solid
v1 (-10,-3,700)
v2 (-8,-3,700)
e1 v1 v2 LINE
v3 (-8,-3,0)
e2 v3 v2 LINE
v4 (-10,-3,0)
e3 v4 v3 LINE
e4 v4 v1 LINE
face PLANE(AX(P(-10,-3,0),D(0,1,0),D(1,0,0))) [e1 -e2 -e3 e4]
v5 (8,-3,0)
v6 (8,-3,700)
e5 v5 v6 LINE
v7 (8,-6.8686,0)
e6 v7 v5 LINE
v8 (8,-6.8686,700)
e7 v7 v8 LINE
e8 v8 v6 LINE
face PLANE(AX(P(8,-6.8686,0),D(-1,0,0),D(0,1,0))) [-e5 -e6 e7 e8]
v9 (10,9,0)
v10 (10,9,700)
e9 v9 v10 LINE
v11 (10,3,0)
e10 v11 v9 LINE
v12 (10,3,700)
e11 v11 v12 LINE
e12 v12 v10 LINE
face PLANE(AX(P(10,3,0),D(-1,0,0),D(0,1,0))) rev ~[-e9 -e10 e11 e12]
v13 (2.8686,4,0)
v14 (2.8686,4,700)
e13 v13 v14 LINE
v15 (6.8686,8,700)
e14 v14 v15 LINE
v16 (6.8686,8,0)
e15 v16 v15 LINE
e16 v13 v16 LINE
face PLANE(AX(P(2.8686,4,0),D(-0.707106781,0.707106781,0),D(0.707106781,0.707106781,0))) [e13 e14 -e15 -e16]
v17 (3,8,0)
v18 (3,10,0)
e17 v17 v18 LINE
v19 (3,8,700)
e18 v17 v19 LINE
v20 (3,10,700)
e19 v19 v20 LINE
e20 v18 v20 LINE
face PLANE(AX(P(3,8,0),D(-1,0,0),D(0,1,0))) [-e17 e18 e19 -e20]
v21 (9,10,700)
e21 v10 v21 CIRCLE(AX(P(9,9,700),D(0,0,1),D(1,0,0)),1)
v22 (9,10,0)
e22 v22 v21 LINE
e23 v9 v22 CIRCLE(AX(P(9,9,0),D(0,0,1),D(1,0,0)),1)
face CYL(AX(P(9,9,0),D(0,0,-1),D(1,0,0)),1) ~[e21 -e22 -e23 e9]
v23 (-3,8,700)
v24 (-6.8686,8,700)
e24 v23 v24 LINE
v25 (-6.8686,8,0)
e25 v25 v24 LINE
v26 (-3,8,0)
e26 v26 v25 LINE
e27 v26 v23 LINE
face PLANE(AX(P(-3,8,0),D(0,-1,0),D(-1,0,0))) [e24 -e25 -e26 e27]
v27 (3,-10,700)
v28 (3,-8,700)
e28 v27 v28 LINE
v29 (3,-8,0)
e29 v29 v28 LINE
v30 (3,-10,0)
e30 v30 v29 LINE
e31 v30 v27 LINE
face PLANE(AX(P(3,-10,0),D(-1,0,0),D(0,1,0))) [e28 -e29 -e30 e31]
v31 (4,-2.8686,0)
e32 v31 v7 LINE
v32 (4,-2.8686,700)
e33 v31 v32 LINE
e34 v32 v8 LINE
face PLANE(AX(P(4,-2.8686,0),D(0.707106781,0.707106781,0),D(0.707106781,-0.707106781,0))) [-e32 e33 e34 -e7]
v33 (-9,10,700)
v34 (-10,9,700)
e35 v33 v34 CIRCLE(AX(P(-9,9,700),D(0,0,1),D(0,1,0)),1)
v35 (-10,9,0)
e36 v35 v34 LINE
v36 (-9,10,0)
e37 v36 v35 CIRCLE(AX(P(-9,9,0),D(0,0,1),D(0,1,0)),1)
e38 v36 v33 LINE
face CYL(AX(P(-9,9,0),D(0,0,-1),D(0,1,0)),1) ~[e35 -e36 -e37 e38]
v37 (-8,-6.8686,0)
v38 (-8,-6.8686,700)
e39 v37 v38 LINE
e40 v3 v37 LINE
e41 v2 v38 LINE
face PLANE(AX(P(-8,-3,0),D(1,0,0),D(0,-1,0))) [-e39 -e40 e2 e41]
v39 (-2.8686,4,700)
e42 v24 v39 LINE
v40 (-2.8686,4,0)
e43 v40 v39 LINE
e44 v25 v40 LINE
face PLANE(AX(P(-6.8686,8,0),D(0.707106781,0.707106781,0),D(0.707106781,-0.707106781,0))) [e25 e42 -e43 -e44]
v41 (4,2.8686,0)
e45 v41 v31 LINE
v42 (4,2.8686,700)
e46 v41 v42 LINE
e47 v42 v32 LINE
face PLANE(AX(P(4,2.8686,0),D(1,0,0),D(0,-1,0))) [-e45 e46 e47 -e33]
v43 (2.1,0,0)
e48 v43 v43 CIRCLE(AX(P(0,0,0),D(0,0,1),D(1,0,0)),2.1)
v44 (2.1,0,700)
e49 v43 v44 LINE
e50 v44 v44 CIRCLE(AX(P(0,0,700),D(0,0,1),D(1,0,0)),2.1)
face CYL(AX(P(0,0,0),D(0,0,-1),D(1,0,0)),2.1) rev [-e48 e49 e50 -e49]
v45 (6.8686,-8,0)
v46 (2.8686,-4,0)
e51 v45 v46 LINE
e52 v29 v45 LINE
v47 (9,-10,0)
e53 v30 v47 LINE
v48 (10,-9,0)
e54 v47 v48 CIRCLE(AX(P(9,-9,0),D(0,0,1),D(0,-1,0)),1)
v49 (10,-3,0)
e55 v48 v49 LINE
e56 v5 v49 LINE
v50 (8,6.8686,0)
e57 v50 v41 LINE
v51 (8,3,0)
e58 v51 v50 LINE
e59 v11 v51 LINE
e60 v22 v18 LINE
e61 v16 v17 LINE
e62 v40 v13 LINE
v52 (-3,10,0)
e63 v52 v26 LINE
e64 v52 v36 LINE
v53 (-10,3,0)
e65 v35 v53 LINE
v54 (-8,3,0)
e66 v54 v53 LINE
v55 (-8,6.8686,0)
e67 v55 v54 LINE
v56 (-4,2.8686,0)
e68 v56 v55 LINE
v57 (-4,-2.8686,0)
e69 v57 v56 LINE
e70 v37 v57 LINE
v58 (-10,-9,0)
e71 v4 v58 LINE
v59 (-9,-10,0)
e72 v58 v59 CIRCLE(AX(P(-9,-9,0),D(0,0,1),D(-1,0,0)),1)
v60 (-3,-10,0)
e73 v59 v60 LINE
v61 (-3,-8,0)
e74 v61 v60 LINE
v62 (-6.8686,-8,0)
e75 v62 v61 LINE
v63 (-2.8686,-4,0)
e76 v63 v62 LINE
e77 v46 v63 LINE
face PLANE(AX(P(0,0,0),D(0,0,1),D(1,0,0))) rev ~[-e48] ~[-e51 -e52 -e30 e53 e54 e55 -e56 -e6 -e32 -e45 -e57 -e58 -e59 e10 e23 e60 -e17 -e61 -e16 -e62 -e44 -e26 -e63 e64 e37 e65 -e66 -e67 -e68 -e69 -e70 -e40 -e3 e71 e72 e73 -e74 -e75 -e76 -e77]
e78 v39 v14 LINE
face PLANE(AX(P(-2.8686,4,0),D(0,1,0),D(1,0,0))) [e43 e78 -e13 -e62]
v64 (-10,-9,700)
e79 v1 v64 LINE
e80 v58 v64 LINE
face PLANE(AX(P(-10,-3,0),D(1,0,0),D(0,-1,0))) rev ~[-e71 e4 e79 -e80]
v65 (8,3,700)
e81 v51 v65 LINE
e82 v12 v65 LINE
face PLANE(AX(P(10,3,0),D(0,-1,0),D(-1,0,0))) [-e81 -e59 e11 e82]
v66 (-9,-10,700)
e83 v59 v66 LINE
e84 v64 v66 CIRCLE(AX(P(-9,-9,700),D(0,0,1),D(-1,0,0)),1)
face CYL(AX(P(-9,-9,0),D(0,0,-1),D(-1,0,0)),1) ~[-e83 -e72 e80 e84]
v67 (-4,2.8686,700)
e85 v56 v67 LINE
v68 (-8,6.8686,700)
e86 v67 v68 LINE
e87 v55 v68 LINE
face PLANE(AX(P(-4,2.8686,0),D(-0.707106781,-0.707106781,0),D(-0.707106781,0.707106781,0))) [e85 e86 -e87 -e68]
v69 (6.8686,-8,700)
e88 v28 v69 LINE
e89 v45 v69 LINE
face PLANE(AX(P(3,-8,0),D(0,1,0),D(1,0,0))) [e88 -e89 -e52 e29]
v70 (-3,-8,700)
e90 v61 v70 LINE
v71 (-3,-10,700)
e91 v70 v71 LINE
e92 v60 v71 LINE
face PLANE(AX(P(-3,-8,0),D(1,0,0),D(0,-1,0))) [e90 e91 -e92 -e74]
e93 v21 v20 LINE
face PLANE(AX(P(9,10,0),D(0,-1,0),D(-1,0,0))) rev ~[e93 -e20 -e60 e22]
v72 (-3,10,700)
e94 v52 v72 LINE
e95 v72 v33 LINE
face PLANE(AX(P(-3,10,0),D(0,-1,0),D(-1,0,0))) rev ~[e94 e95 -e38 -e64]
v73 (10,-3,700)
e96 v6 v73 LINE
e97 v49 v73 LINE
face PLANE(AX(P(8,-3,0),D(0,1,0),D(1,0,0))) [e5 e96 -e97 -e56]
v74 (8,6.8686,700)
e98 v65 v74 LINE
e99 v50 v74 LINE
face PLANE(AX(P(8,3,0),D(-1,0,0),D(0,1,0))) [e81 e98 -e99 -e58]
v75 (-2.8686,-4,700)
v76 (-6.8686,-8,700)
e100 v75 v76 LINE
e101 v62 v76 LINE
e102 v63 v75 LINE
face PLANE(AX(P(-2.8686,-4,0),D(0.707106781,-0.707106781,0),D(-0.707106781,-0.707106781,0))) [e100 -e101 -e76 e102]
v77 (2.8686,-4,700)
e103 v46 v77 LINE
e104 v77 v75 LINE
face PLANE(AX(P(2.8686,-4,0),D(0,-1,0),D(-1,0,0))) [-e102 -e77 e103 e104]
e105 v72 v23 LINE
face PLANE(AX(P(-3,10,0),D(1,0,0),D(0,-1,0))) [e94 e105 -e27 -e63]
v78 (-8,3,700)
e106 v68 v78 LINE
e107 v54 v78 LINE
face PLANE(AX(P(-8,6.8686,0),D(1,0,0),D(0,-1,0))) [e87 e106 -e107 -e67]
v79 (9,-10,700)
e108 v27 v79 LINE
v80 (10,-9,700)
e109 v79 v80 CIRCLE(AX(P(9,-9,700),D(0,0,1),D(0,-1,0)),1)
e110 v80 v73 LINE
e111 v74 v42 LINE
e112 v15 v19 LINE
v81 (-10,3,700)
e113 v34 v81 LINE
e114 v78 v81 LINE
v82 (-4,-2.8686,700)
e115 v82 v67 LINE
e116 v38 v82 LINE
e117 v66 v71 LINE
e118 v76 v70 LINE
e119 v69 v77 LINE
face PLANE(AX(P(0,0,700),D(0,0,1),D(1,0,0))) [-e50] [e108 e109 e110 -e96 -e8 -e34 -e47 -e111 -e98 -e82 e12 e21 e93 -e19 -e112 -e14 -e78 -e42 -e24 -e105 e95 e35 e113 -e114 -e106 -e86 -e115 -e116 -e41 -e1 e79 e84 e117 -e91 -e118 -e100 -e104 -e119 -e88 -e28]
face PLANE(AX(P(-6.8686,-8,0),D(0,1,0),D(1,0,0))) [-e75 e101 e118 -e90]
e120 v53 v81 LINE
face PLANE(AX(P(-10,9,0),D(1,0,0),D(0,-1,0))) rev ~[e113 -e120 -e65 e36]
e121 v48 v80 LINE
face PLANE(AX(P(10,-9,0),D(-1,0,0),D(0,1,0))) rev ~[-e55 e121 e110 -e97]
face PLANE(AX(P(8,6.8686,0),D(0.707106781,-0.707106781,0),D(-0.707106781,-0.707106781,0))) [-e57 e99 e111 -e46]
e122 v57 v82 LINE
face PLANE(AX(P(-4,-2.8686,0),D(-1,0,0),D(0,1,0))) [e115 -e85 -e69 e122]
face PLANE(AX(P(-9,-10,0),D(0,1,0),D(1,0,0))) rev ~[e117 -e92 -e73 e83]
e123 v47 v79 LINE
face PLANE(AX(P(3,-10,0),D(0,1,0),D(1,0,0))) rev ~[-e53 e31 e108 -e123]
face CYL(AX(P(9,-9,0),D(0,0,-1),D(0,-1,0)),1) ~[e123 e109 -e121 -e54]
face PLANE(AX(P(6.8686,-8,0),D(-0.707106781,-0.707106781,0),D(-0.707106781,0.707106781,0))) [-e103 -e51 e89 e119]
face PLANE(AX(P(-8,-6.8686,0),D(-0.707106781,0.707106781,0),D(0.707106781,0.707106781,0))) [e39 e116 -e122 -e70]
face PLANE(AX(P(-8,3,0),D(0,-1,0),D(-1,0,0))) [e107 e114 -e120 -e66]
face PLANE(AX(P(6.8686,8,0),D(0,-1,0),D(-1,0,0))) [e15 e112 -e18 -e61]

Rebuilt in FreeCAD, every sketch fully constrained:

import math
import FreeCAD as App
import Part
import Sketcher
Q = App.Units.Quantity

doc = App.newDocument("Part")
body = doc.addObject("PartDesign::Body", "Body")

# Sketch on XY plane
sketch1 = body.newObject("Sketcher::SketchObject", "Sketch")
sketch1.AttachmentSupport = (doc.getObject("XY_Plane"), [""])
sketch1.MapMode = "FlatFace"
sketch1.addGeometry([
    Part.LineSegment(App.Vector(8, 3, 0), App.Vector(10, 3, 0)),  # 0
    Part.LineSegment(App.Vector(10, 3, 0), App.Vector(10, 9, 0)),  # 1
    Part.ArcOfCircle(Part.Circle(App.Vector(9, 9, 0), App.Vector(0, 0, 1), 1), math.radians(0), math.radians(90)),  # 2
    Part.LineSegment(App.Vector(9, 10, 0), App.Vector(3, 10, 0)),  # 3
    Part.LineSegment(App.Vector(3, 10, 0), App.Vector(3, 8, 0)),  # 4
    Part.LineSegment(App.Vector(3, 8, 0), App.Vector(6.9, 8, 0)),  # 5
    Part.LineSegment(App.Vector(6.9, 8, 0), App.Vector(2.9, 4, 0)),  # 6
    Part.LineSegment(App.Vector(2.9, 4, 0), App.Vector(-2.9, 4, 0)),  # 7
    Part.LineSegment(App.Vector(-2.9, 4, 0), App.Vector(-6.9, 8, 0)),  # 8
    Part.LineSegment(App.Vector(-6.9, 8, 0), App.Vector(-3, 8, 0)),  # 9
    Part.LineSegment(App.Vector(-3, 8, 0), App.Vector(-3, 10, 0)),  # 10
    Part.LineSegment(App.Vector(-3, 10, 0), App.Vector(-9, 10, 0)),  # 11
    Part.ArcOfCircle(Part.Circle(App.Vector(-9, 9, 0), App.Vector(0, 0, 1), 1), math.radians(90), math.radians(180)),  # 12
    Part.LineSegment(App.Vector(-10, 9, 0), App.Vector(-10, 3, 0)),  # 13
    Part.LineSegment(App.Vector(-10, 3, 0), App.Vector(-8, 3, 0)),  # 14
    Part.LineSegment(App.Vector(-8, 3, 0), App.Vector(-8, 6.9, 0)),  # 15
    Part.LineSegment(App.Vector(-8, 6.9, 0), App.Vector(-4, 2.9, 0)),  # 16
    Part.LineSegment(App.Vector(-4, 2.9, 0), App.Vector(-4, -2.9, 0)),  # 17
    Part.LineSegment(App.Vector(-4, -2.9, 0), App.Vector(-8, -6.9, 0)),  # 18
    Part.LineSegment(App.Vector(-8, -6.9, 0), App.Vector(-8, -3, 0)),  # 19
    Part.LineSegment(App.Vector(-8, -3, 0), App.Vector(-10, -3, 0)),  # 20
    Part.LineSegment(App.Vector(-10, -3, 0), App.Vector(-10, -9, 0)),  # 21
    Part.ArcOfCircle(Part.Circle(App.Vector(-9, -9, 0), App.Vector(0, 0, 1), 1), math.radians(180), math.radians(270)),  # 22
    Part.LineSegment(App.Vector(-9, -10, 0), App.Vector(-3, -10, 0)),  # 23
    Part.LineSegment(App.Vector(-3, -10, 0), App.Vector(-3, -8, 0)),  # 24
    Part.LineSegment(App.Vector(-3, -8, 0), App.Vector(-6.9, -8, 0)),  # 25
    Part.LineSegment(App.Vector(-6.9, -8, 0), App.Vector(-2.9, -4, 0)),  # 26
    Part.LineSegment(App.Vector(-2.9, -4, 0), App.Vector(2.9, -4, 0)),  # 27
    Part.LineSegment(App.Vector(2.9, -4, 0), App.Vector(6.9, -8, 0)),  # 28
    Part.LineSegment(App.Vector(6.9, -8, 0), App.Vector(3, -8, 0)),  # 29
    Part.LineSegment(App.Vector(3, -8, 0), App.Vector(3, -10, 0)),  # 30
    Part.LineSegment(App.Vector(3, -10, 0), App.Vector(9, -10, 0)),  # 31
    Part.ArcOfCircle(Part.Circle(App.Vector(9, -9, 0), App.Vector(0, 0, 1), 1), math.radians(-90), math.radians(0)),  # 32
    Part.LineSegment(App.Vector(10, -9, 0), App.Vector(10, -3, 0)),  # 33
    Part.LineSegment(App.Vector(10, -3, 0), App.Vector(8, -3, 0)),  # 34
    Part.LineSegment(App.Vector(8, -3, 0), App.Vector(8, -6.9, 0)),  # 35
    Part.LineSegment(App.Vector(8, -6.9, 0), App.Vector(4, -2.9, 0)),  # 36
    Part.LineSegment(App.Vector(4, -2.9, 0), App.Vector(4, 2.9, 0)),  # 37
    Part.LineSegment(App.Vector(4, 2.9, 0), App.Vector(8, 6.9, 0)),  # 38
    Part.LineSegment(App.Vector(8, 6.9, 0), App.Vector(8, 3, 0)),  # 39
    Part.Circle(App.Vector(0, 0, 0), App.Vector(0, 0, 1), 2.1),  # 40
], False)
sketch1.addConstraint([
    Sketcher.Constraint("Coincident", 0, 2, 1, 1),
    Sketcher.Constraint("Tangent", 1, 2, 2, 1),
    Sketcher.Constraint("Tangent", 2, 2, 3, 1),
    Sketcher.Constraint("Coincident", 3, 2, 4, 1),
    Sketcher.Constraint("Coincident", 4, 2, 5, 1),
    Sketcher.Constraint("Coincident", 5, 2, 6, 1),
    Sketcher.Constraint("Coincident", 6, 2, 7, 1),
    Sketcher.Constraint("Coincident", 7, 2, 8, 1),
    Sketcher.Constraint("Coincident", 8, 2, 9, 1),
    Sketcher.Constraint("Coincident", 9, 2, 10, 1),
    Sketcher.Constraint("Coincident", 10, 2, 11, 1),
    Sketcher.Constraint("Tangent", 11, 2, 12, 1),
    Sketcher.Constraint("Tangent", 12, 2, 13, 1),
    Sketcher.Constraint("Coincident", 13, 2, 14, 1),
    Sketcher.Constraint("Coincident", 14, 2, 15, 1),
    Sketcher.Constraint("Coincident", 15, 2, 16, 1),
    Sketcher.Constraint("Coincident", 16, 2, 17, 1),
    Sketcher.Constraint("Coincident", 17, 2, 18, 1),
    Sketcher.Constraint("Coincident", 18, 2, 19, 1),
    Sketcher.Constraint("Coincident", 19, 2, 20, 1),
    Sketcher.Constraint("Coincident", 20, 2, 21, 1),
    Sketcher.Constraint("Tangent", 21, 2, 22, 1),
    Sketcher.Constraint("Tangent", 22, 2, 23, 1),
    Sketcher.Constraint("Coincident", 23, 2, 24, 1),
    Sketcher.Constraint("Coincident", 24, 2, 25, 1),
    Sketcher.Constraint("Coincident", 25, 2, 26, 1),
    Sketcher.Constraint("Coincident", 26, 2, 27, 1),
    Sketcher.Constraint("Coincident", 27, 2, 28, 1),
    Sketcher.Constraint("Coincident", 28, 2, 29, 1),
    Sketcher.Constraint("Coincident", 29, 2, 30, 1),
    Sketcher.Constraint("Coincident", 30, 2, 31, 1),
    Sketcher.Constraint("Tangent", 31, 2, 32, 1),
    Sketcher.Constraint("Tangent", 32, 2, 33, 1),
    Sketcher.Constraint("Coincident", 33, 2, 34, 1),
    Sketcher.Constraint("Coincident", 34, 2, 35, 1),
    Sketcher.Constraint("Coincident", 35, 2, 36, 1),
    Sketcher.Constraint("Coincident", 36, 2, 37, 1),
    Sketcher.Constraint("Coincident", 37, 2, 38, 1),
    Sketcher.Constraint("Coincident", 38, 2, 39, 1),
    Sketcher.Constraint("Coincident", 39, 2, 0, 1),
    Sketcher.Constraint("Horizontal", 0),
    Sketcher.Constraint("Vertical", 1),
    Sketcher.Constraint("Horizontal", 3),
    Sketcher.Constraint("Vertical", 4),
    Sketcher.Constraint("Horizontal", 5),
    Sketcher.Constraint("Horizontal", 7),
    Sketcher.Constraint("Horizontal", 9),
    Sketcher.Constraint("Vertical", 10),
    Sketcher.Constraint("Horizontal", 11),
    Sketcher.Constraint("Vertical", 13),
    Sketcher.Constraint("Horizontal", 14),
    Sketcher.Constraint("Vertical", 15),
    Sketcher.Constraint("Vertical", 17),
    Sketcher.Constraint("Vertical", 19),
    Sketcher.Constraint("Horizontal", 20),
    Sketcher.Constraint("Vertical", 21),
    Sketcher.Constraint("Horizontal", 23),
    Sketcher.Constraint("Vertical", 24),
    Sketcher.Constraint("Horizontal", 25),
    Sketcher.Constraint("Horizontal", 27),
    Sketcher.Constraint("Horizontal", 29),
    Sketcher.Constraint("Vertical", 30),
    Sketcher.Constraint("Horizontal", 31),
    Sketcher.Constraint("Vertical", 33),
    Sketcher.Constraint("Horizontal", 34),
    Sketcher.Constraint("Vertical", 35),
    Sketcher.Constraint("Vertical", 37),
    Sketcher.Constraint("Vertical", 39),
    Sketcher.Constraint("Coincident", 40, 3, -1, 1),
    Sketcher.Constraint("Equal", 2, 12),
    Sketcher.Constraint("Equal", 12, 22),
    Sketcher.Constraint("Equal", 22, 32),
    Sketcher.Constraint("Symmetric", 2, 3, 22, 3, -1, 1),
    Sketcher.Constraint("Symmetric", 12, 3, 32, 3, -1, 1),
    Sketcher.Constraint("Symmetric", 4, 2, 24, 2, -1, 1),
    Sketcher.Constraint("Symmetric", 6, 2, 26, 2, -1, 1),
    Sketcher.Constraint("Symmetric", 8, 2, 28, 2, -1, 1),
    Sketcher.Constraint("Symmetric", 14, 2, 34, 2, -1, 1),
    Sketcher.Constraint("Symmetric", 16, 2, 36, 2, -1, 1),
    Sketcher.Constraint("Symmetric", 18, 2, 38, 2, -1, 1),
    Sketcher.Constraint("Symmetric", 2, 3, 12, 3, -2),
    Sketcher.Constraint("Symmetric", 5, 2, 8, 2, -2),
    Sketcher.Constraint("Symmetric", 19, 2, 34, 2, -2),
    Sketcher.Constraint("Perpendicular", 6, 8),
    Sketcher.Constraint("Parallel", 8, 16),
    Sketcher.Constraint("Perpendicular", 16, 18),
    Sketcher.Constraint("Parallel", 18, 26),
    Sketcher.Constraint("Perpendicular", 26, 28),
    Sketcher.Constraint("Parallel", 28, 36),
    Sketcher.Constraint("Perpendicular", 36, 38),
    Sketcher.Constraint("Horizontal", 0, 2, 13, 2),
    Sketcher.Constraint("Horizontal", 18, 2, 35, 2),
    Sketcher.Constraint("Horizontal", 17, 2, 36, 2),
    Sketcher.Constraint("Vertical", 10, 2, 23, 2),
    Sketcher.Constraint("Vertical", 4, 2, 29, 2),
    Sketcher.Constraint("Equal", 31, 1),
    Sketcher.Constraint("Equal", 34, 4),
    Sketcher.Constraint("Equal", 29, 15),
    Sketcher.Constraint("Equal", 27, 17),
    Sketcher.Constraint("Equal", 8, 16),
    Sketcher.Constraint("Radius", 2, Q("1 mm")),
    Sketcher.Constraint("Diameter", 40, Q("4.2 mm")),
    Sketcher.Constraint("DistanceX", 0, 1, 0, 2, Q("2 mm")),
    Sketcher.Constraint("DistanceX", 3, 2, 3, 1, Q("6 mm")),
    Sketcher.Constraint("DistanceY", -1, 1, 6, 2, Q("4 mm")),
    Sketcher.Constraint("DistanceY", 6, 2, 4, 2, Q("4 mm")),
    Sketcher.Constraint("DistanceX", 5, 1, 5, 2, Q("3.8686 mm")),
])
pad1 = body.newObject("PartDesign::Pad", "Pad")
pad1.Profile = sketch1
pad1.Length = 700

doc.recompute()
